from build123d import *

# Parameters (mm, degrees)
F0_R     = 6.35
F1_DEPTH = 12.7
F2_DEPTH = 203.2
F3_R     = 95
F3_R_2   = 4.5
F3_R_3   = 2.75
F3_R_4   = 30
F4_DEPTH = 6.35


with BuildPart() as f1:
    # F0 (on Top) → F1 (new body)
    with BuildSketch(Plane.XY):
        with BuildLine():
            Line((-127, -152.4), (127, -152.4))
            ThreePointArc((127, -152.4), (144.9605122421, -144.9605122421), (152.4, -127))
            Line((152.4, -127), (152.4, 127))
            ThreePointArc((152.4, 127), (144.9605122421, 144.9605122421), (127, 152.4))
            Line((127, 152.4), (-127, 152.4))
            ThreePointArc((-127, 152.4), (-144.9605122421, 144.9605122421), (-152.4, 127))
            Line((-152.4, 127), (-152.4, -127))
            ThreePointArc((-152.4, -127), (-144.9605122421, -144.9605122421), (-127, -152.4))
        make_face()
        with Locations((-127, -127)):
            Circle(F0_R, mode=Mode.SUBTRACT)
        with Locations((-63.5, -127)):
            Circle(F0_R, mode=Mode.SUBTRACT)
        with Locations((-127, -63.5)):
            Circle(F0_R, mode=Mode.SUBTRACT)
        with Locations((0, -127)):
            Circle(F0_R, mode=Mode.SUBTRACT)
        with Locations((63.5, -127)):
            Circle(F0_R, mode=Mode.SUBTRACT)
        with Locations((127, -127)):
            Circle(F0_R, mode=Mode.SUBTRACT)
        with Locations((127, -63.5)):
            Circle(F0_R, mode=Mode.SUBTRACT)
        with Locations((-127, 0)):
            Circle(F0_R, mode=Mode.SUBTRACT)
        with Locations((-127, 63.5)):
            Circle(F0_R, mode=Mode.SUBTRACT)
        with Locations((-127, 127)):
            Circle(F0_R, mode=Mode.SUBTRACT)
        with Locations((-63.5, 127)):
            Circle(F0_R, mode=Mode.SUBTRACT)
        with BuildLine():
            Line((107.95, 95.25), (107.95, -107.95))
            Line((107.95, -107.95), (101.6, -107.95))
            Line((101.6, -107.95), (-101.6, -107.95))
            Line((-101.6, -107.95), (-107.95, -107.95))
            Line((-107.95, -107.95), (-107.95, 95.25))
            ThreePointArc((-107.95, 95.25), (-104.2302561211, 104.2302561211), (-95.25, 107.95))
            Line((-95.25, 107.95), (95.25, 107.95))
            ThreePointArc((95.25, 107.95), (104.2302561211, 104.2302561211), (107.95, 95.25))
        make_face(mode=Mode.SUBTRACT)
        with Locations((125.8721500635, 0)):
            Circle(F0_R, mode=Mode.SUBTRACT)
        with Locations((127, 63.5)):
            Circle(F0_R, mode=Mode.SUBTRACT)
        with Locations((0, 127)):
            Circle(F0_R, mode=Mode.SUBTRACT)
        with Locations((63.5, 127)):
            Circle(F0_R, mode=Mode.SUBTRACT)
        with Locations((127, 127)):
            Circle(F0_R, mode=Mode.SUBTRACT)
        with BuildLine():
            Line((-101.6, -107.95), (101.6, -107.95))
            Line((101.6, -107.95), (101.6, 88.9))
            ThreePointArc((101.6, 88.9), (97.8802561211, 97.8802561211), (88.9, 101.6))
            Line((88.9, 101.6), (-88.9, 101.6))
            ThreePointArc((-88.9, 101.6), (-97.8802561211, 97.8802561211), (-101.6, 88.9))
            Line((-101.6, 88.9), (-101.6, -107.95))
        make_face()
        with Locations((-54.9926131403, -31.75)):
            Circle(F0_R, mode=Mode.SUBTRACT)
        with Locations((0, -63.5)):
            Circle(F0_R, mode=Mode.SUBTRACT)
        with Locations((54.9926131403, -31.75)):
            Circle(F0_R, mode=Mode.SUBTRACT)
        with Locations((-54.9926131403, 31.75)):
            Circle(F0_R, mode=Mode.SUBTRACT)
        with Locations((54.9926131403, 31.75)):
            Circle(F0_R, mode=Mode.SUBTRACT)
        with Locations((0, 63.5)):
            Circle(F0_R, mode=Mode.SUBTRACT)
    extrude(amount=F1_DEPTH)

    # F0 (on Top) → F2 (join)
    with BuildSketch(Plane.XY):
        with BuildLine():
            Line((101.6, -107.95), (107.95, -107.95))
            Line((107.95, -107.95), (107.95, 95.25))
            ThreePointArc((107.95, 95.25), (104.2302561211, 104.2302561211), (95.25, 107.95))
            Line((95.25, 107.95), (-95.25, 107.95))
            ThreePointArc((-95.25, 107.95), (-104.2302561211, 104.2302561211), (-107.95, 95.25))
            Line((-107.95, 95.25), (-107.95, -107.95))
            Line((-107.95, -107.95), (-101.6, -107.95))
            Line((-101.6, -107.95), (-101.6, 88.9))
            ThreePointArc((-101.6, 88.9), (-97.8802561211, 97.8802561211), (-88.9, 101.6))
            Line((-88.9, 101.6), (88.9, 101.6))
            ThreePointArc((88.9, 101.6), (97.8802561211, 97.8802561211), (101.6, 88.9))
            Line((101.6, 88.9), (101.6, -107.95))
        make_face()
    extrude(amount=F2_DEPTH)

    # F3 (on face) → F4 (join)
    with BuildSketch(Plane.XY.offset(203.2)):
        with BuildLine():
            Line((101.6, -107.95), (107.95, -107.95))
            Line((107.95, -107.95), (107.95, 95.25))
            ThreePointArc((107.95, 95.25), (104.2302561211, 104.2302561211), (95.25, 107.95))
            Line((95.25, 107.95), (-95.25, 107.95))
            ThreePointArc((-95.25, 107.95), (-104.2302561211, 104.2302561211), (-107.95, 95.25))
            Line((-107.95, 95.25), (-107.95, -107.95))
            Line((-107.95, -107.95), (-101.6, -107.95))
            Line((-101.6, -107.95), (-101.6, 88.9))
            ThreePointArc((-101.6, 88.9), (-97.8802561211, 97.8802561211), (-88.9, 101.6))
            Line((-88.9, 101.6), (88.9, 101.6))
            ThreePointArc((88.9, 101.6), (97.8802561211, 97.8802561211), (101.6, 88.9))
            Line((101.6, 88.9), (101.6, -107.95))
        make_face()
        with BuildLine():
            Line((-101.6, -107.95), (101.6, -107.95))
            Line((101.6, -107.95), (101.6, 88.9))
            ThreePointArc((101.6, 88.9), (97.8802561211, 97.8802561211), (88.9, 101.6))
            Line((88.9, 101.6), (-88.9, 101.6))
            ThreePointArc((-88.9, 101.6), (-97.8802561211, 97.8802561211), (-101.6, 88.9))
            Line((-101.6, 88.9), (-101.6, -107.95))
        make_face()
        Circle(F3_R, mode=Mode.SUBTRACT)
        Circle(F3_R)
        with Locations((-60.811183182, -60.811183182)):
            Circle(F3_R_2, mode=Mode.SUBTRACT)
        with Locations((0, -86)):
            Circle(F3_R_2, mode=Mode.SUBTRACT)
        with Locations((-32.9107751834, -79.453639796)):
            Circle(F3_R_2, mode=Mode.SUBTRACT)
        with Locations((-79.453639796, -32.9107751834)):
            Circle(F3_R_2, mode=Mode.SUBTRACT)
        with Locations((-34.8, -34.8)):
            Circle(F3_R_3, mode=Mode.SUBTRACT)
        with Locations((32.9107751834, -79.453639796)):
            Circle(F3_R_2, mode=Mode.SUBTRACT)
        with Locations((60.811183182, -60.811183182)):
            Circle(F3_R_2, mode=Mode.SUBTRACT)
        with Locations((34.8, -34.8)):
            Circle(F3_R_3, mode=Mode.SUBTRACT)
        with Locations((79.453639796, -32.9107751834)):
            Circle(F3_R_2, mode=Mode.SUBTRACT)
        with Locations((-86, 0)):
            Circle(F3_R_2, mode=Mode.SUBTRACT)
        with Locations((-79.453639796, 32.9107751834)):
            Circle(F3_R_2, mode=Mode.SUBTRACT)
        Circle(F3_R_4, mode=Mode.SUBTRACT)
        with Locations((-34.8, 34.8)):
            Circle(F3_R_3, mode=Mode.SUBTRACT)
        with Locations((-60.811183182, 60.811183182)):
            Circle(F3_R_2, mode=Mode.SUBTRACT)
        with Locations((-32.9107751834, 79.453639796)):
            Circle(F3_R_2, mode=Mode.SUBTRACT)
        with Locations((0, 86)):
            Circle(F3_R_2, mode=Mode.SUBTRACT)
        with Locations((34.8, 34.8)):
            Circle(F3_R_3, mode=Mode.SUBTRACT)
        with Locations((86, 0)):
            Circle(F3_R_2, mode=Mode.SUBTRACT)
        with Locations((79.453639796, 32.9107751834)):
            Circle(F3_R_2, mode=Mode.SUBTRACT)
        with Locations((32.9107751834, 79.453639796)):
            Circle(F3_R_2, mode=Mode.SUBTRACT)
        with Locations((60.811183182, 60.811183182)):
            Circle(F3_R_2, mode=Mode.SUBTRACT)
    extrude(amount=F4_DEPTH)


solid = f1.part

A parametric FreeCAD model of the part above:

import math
import FreeCAD as App
import Part
import Sketcher
from FreeCAD import Vector
Q = App.Units.Quantity

doc = App.newDocument("Part")
body = doc.addObject("PartDesign::Body", "Body")

sketch1 = body.newObject("Sketcher::SketchObject", "Sketch")
sketch1.AttachmentSupport = (doc.getObject("XY_Plane"), [""])
sketch1.MapMode = "FlatFace"
sketch1.addGeometry([
    Part.LineSegment(Vector(-127, -152, 0), Vector(127, -152, 0)),
    Part.ArcOfCircle(Part.Circle(Vector(127, -127, 0), Vector(0, 0, 1), 25), math.radians(-90), math.radians(0)),
    Part.LineSegment(Vector(152, -127, 0), Vector(152, 127, 0)),
    Part.ArcOfCircle(Part.Circle(Vector(127, 127, 0), Vector(0, 0, 1), 25), math.radians(0), math.radians(90)),
    Part.LineSegment(Vector(127, 152, 0), Vector(-127, 152, 0)),
    Part.ArcOfCircle(Part.Circle(Vector(-127, 127, 0), Vector(0, 0, 1), 25), math.radians(90), math.radians(180)),
    Part.LineSegment(Vector(-152, 127, 0), Vector(-152, -127, 0)),
    Part.ArcOfCircle(Part.Circle(Vector(-127, -127, 0), Vector(0, 0, 1), 25), math.radians(180), math.radians(270)),
    Part.Circle(Vector(-127, -127, 0), Vector(0, 0, 1), 6),
    Part.Circle(Vector(-64, -127, 0), Vector(0, 0, 1), 6),
    Part.Circle(Vector(-127, -64, 0), Vector(0, 0, 1), 6),
    Part.Circle(Vector(-55, -32, 0), Vector(0, 0, 1), 6),
    Part.Circle(Vector(0, -127, 0), Vector(0, 0, 1), 6),
    Part.Circle(Vector(64, -127, 0), Vector(0, 0, 1), 6),
    Part.Circle(Vector(127, -127, 0), Vector(0, 0, 1), 6),
    Part.Circle(Vector(0, -64, 0), Vector(0, 0, 1), 6),
    Part.Circle(Vector(55, -32, 0), Vector(0, 0, 1), 6),
    Part.Circle(Vector(127, -64, 0), Vector(0, 0, 1), 6),
    Part.Circle(Vector(-127, 0, 0), Vector(0, 0, 1), 6),
    Part.Circle(Vector(-127, 64, 0), Vector(0, 0, 1), 6),
    Part.Circle(Vector(-55, 32, 0), Vector(0, 0, 1), 6),
    Part.Circle(Vector(-127, 127, 0), Vector(0, 0, 1), 6),
    Part.Circle(Vector(-64, 127, 0), Vector(0, 0, 1), 6),
    Part.ArcOfCircle(Part.Circle(Vector(95, 95, 0), Vector(0, 0, 1), 13), math.radians(0), math.radians(90)),
    Part.LineSegment(Vector(108, 95, 0), Vector(108, -108, 0)),
    Part.LineSegment(Vector(108, -108, 0), Vector(102, -108, 0)),
    Part.LineSegment(Vector(102, -108, 0), Vector(102, 89, 0)),
    Part.ArcOfCircle(Part.Circle(Vector(89, 89, 0), Vector(0, 0, 1), 13), math.radians(0), math.radians(90)),
    Part.LineSegment(Vector(89, 102, 0), Vector(-89, 102, 0)),
    Part.ArcOfCircle(Part.Circle(Vector(-89, 89, 0), Vector(0, 0, 1), 13), math.radians(90), math.radians(180)),
    Part.LineSegment(Vector(-102, 89, 0), Vector(-102, -108, 0)),
    Part.LineSegment(Vector(-102, -108, 0), Vector(-108, -108, 0)),
    Part.LineSegment(Vector(-108, -108, 0), Vector(-108, 95, 0)),
    Part.ArcOfCircle(Part.Circle(Vector(-95, 95, 0), Vector(0, 0, 1), 13), math.radians(90), math.radians(180)),
    Part.LineSegment(Vector(-95, 108, 0), Vector(95, 108, 0)),
    Part.Circle(Vector(55, 32, 0), Vector(0, 0, 1), 6),
    Part.Circle(Vector(0, 64, 0), Vector(0, 0, 1), 6),
    Part.Circle(Vector(126, 0, 0), Vector(0, 0, 1), 6),
    Part.Circle(Vector(127, 64, 0), Vector(0, 0, 1), 6),
    Part.Circle(Vector(0, 127, 0), Vector(0, 0, 1), 6),
    Part.Circle(Vector(64, 127, 0), Vector(0, 0, 1), 6),
    Part.Circle(Vector(127, 127, 0), Vector(0, 0, 1), 6),
], False)
sketch1.addConstraint([
    Sketcher.Constraint("Tangent", 0, 2, 1, 1),
    Sketcher.Constraint("Tangent", 1, 2, 2, 1),
    Sketcher.Constraint("Tangent", 2, 2, 3, 1),
    Sketcher.Constraint("Tangent", 3, 2, 4, 1),
    Sketcher.Constraint("Tangent", 4, 2, 5, 1),
    Sketcher.Constraint("Tangent", 5, 2, 6, 1),
    Sketcher.Constraint("Tangent", 6, 2, 7, 1),
    Sketcher.Constraint("Tangent", 7, 2, 0, 1),
    Sketcher.Constraint("Tangent", 23, 1, 24, 1),
    Sketcher.Constraint("Coincident", 24, 2, 25, 1),
    Sketcher.Constraint("Coincident", 25, 2, 26, 1),
    Sketcher.Constraint("Tangent", 26, 2, 27, 1),
    Sketcher.Constraint("Tangent", 27, 2, 28, 1),
    Sketcher.Constraint("Tangent", 28, 2, 29, 1),
    Sketcher.Constraint("Tangent", 29, 2, 30, 1),
    Sketcher.Constraint("Coincident", 30, 2, 31, 1),
    Sketcher.Constraint("Coincident", 31, 2, 32, 1),
    Sketcher.Constraint("Tangent", 32, 2, 33, 2),
    Sketcher.Constraint("Tangent", 33, 1, 34, 1),
    Sketcher.Constraint("Tangent", 34, 2, 23, 2),
    Sketcher.Constraint("Horizontal", 0),
    Sketcher.Constraint("Vertical", 2),
    Sketcher.Constraint("Horizontal", 4),
    Sketcher.Constraint("Vertical", 6),
    Sketcher.Constraint("Vertical", 24),
    Sketcher.Constraint("Horizontal", 25),
    Sketcher.Constraint("Vertical", 26),
    Sketcher.Constraint("Horizontal", 28),
    Sketcher.Constraint("Vertical", 30),
    Sketcher.Constraint("Horizontal", 31),
    Sketcher.Constraint("Vertical", 32),
    Sketcher.Constraint("Horizontal", 34),
    Sketcher.Constraint("Coincident", 8, 3, 7, 3),
    Sketcher.Constraint("Coincident", 14, 3, 1, 3),
    Sketcher.Constraint("Coincident", 21, 3, 5, 3),
    Sketcher.Constraint("Coincident", 41, 3, 3, 3),
    Sketcher.Constraint("Equal", 1, 3),
    Sketcher.Constraint("Equal", 3, 5),
    Sketcher.Constraint("Equal", 5, 7),
    Sketcher.Constraint("Equal", 8, 9),
    Sketcher.Constraint("Equal", 9, 10),
    Sketcher.Constraint("Equal", 10, 11),
    Sketcher.Constraint("Equal", 11, 12),
    Sketcher.Constraint("Equal", 12, 13),
    Sketcher.Constraint("Equal", 13, 14),
    Sketcher.Constraint("Equal", 14, 15),
    Sketcher.Constraint("Equal", 15, 16),
    Sketcher.Constraint("Equal", 16, 17),
    Sketcher.Constraint("Equal", 17, 18),
    Sketcher.Constraint("Equal", 18, 19),
    Sketcher.Constraint("Equal", 19, 20),
    Sketcher.Constraint("Equal", 20, 21),
    Sketcher.Constraint("Equal", 21, 22),
    Sketcher.Constraint("Equal", 23, 27),
    Sketcher.Constraint("Equal", 27, 29),
    Sketcher.Constraint("Equal", 29, 33),
    Sketcher.Constraint("Equal", 22, 35),
    Sketcher.Constraint("Equal", 35, 36),
    Sketcher.Constraint("Equal", 36, 37),
    Sketcher.Constraint("Equal", 37, 38),
    Sketcher.Constraint("Equal", 38, 39),
    Sketcher.Constraint("Equal", 39, 40),
    Sketcher.Constraint("Equal", 40, 41),
    Sketcher.Constraint("Symmetric", 1, 3, 5, 3, -1, 1),
    Sketcher.Constraint("Symmetric", 17, 3, 19, 3, -1, 1),
    Sketcher.Constraint("Symmetric", 16, 3, 20, 3, -1, 1),
    Sketcher.Constraint("Symmetric", 13, 3, 22, 3, -1, 1),
    Sketcher.Constraint("Symmetric", 11, 3, 35, 3, -1, 1),
    Sketcher.Constraint("Symmetric", 15, 3, 36, 3, -1, 1),
    Sketcher.Constraint("Symmetric", 10, 3, 38, 3, -1, 1),
    Sketcher.Constraint("Symmetric", 12, 3, 39, 3, -1, 1),
    Sketcher.Constraint("Symmetric", 9, 3, 40, 3, -1, 1),
    Sketcher.Constraint("Symmetric", 9, 3, 13, 3, -2),
    Sketcher.Constraint("Symmetric", 11, 3, 16, 3, -2),
    Sketcher.Constraint("Symmetric", 10, 3, 17, 3, -2),
    Sketcher.Constraint("Symmetric", 25, 2, 30, 2, -2),
    Sketcher.Constraint("PointOnObject", 12, 3, -2),
    Sketcher.Constraint("PointOnObject", 15, 3, -2),
    Sketcher.Constraint("PointOnObject", 18, 3, -1),
    Sketcher.Constraint("PointOnObject", 37, 3, -1),
    Sketcher.Constraint("Horizontal", 8, 3, 9, 3),
    Sketcher.Constraint("Horizontal", 9, 3, 12, 3),
    Sketcher.Constraint("Horizontal", 10, 3, 15, 3),
    Sketcher.Constraint("Vertical", 8, 3, 10, 3),
    Sketcher.Constraint("Vertical", 10, 3, 18, 3),
    Sketcher.Constraint("Equal", 25, 31),
    Sketcher.Constraint("Equal", 4, 2),
    Sketcher.Constraint("Radius", 1, Q("1 in")),
    Sketcher.Constraint("Diameter", 8, Q("0.5 in")),
    Sketcher.Constraint("Radius", 23, Q("0.5 in")),
    Sketcher.Constraint("DistanceX", 0, 1, 0, 2, Q("10 in")),
    Sketcher.Constraint("DistanceX", 28, 2, 28, 1, Q("7 in")),
    Sketcher.Constraint("DistanceY", 24, 2, 24, 1, Q("8 in")),
    Sketcher.Constraint("DistanceX", 34, 1, 34, 2, Q("7.5 in")),
    Sketcher.Constraint("DistanceY", -1, 1, 27, 2, Q("4 in")),
    Sketcher.Constraint("DistanceX", 9, 3, 13, 3, Q("5 in")),
    Sketcher.Constraint("DistanceY", 10, 3, 19, 3, Q("5 in")),
    Sketcher.Constraint("DistanceY", 16, 3, 23, 3, Q("5 in")),
    Sketcher.Constraint("DistanceY", 26, 1, 26, 2, Q("7.75 in")),
    Sketcher.Constraint("DistanceX", -1, 1, 37, 3, Q("125.87215 mm")),
    Sketcher.Constraint("DistanceX", 11, 3, -1, 1, Q("54.992613 mm")),
])
pad1 = body.newObject("PartDesign::Pad", "Pad")
pad1.Profile = sketch1
pad1.Length = Q("0.5 in")

sketch2 = body.newObject("Sketcher::SketchObject", "Sketch001")
sketch2.AttachmentSupport = (doc.getObject("XY_Plane"), [""])
sketch2.MapMode = "FlatFace"
sketch2.addGeometry([
    Part.LineSegment(Vector(102, -108, 0), Vector(108, -108, 0)),
    Part.LineSegment(Vector(108, -108, 0), Vector(108, 95, 0)),
    Part.ArcOfCircle(Part.Circle(Vector(95, 95, 0), Vector(0, 0, 1), 13), math.radians(0), math.radians(90)),
    Part.LineSegment(Vector(95, 108, 0), Vector(-95, 108, 0)),
    Part.ArcOfCircle(Part.Circle(Vector(-95, 95, 0), Vector(0, 0, 1), 13), math.radians(90), math.radians(180)),
    Part.LineSegment(Vector(-108, 95, 0), Vector(-108, -108, 0)),
    Part.LineSegment(Vector(-108, -108, 0), Vector(-102, -108, 0)),
    Part.LineSegment(Vector(-102, -108, 0), Vector(-102, 89, 0)),
    Part.ArcOfCircle(Part.Circle(Vector(-89, 89, 0), Vector(0, 0, 1), 13), math.radians(90), math.radians(180)),
    Part.LineSegment(Vector(-89, 102, 0), Vector(89, 102, 0)),
    Part.ArcOfCircle(Part.Circle(Vector(89, 89, 0), Vector(0, 0, 1), 13), math.radians(0), math.radians(90)),
    Part.LineSegment(Vector(102, 89, 0), Vector(102, -108, 0)),
], False)
sketch2.addConstraint([
    Sketcher.Constraint("Coincident", 0, 2, 1, 1),
    Sketcher.Constraint("Tangent", 1, 2, 2, 1),
    Sketcher.Constraint("Tangent", 2, 2, 3, 1),
    Sketcher.Constraint("Tangent", 3, 2, 4, 1),
    Sketcher.Constraint("Tangent", 4, 2, 5, 1),
    Sketcher.Constraint("Coincident", 5, 2, 6, 1),
    Sketcher.Constraint("Coincident", 6, 2, 7, 1),
    Sketcher.Constraint("Tangent", 7, 2, 8, 2),
    Sketcher.Constraint("Tangent", 8, 1, 9, 1),
    Sketcher.Constraint("Tangent", 9, 2, 10, 2),
    Sketcher.Constraint("Tangent", 10, 1, 11, 1),
    Sketcher.Constraint("Coincident", 11, 2, 0, 1),
    Sketcher.Constraint("Horizontal", 0),
    Sketcher.Constraint("Vertical", 1),
    Sketcher.Constraint("Horizontal", 3),
    Sketcher.Constraint("Vertical", 5),
    Sketcher.Constraint("Horizontal", 6),
    Sketcher.Constraint("Vertical", 7),
    Sketcher.Constraint("Horizontal", 9),
    Sketcher.Constraint("Vertical", 11),
    Sketcher.Constraint("Equal", 2, 4),
    Sketcher.Constraint("Equal", 4, 8),
    Sketcher.Constraint("Equal", 8, 10),
    Sketcher.Constraint("Symmetric", 0, 2, 5, 2, -2),
    Sketcher.Constraint("Equal", 0, 6),
    Sketcher.Constraint("Radius", 2, Q("0.5 in")),
    Sketcher.Constraint("DistanceX", 9, 1, 9, 2, Q("7 in")),
    Sketcher.Constraint("DistanceY", 1, 1, 1, 2, Q("8 in")),
    Sketcher.Constraint("DistanceX", 3, 2, 3, 1, Q("7.5 in")),
    Sketcher.Constraint("DistanceY", -1, 1, 8, 1, Q("4 in")),
    Sketcher.Constraint("DistanceY", 7, 1, 7, 2, Q("7.75 in")),
])
pad2 = body.newObject("PartDesign::Pad", "Pad001")
pad2.Profile = sketch2
pad2.Length = Q("8 in")

sketch3 = body.newObject("Sketcher::SketchObject", "Sketch002")
sketch3.AttachmentSupport = (doc.getObject("XY_Plane"), [""])
sketch3.MapMode = "FlatFace"
sketch3.AttachmentOffset = App.Placement(Vector(0, 0, 8 * 25.4), App.Rotation())
sketch3.addGeometry([
    Part.LineSegment(Vector(108, -108, 0), Vector(108, 95.2, 0)),
    Part.ArcOfCircle(Part.Circle(Vector(95.2, 95.2, 0), Vector(0, 0, 1), 12.7), math.radians(0), math.radians(90)),
    Part.LineSegment(Vector(95.2, 108, 0), Vector(-95.2, 108, 0)),
    Part.ArcOfCircle(Part.Circle(Vector(-95.2, 95.2, 0), Vector(0, 0, 1), 12.7), math.radians(90), math.radians(180)),
    Part.LineSegment(Vector(-108, 95.2, 0), Vector(-108, -108, 0)),
    Part.LineSegment(Vector(-108, -108, 0), Vector(108, -108, 0)),
    Part.Circle(Vector(-60.8, -60.8, 0), Vector(0, 0, 1), 4.5),
    Part.Circle(Vector(-32.9, -79.5, 0), Vector(0, 0, 1), 4.5),
    Part.Circle(Vector(-79.5, -32.9, 0), Vector(0, 0, 1), 4.5),
    Part.Circle(Vector(-34.8, -34.8, 0), Vector(0, 0, 1), 2.8),
    Part.Circle(Vector(0, -86, 0), Vector(0, 0, 1), 4.5),
    Part.Circle(Vector(32.9, -79.5, 0), Vector(0, 0, 1), 4.5),
    Part.Circle(Vector(60.8, -60.8, 0), Vector(0, 0, 1), 4.5),
    Part.Circle(Vector(34.8, -34.8, 0), Vector(0, 0, 1), 2.8),
    Part.Circle(Vector(79.5, -32.9, 0), Vector(0, 0, 1), 4.5),
    Part.Circle(Vector(-86, 0, 0), Vector(0, 0, 1), 4.5),
    Part.Circle(Vector(-79.5, 32.9, 0), Vector(0, 0, 1), 4.5),
    Part.Circle(Vector(-34.8, 34.8, 0), Vector(0, 0, 1), 2.8),
    Part.Circle(Vector(-60.8, 60.8, 0), Vector(0, 0, 1), 4.5),
    Part.Circle(Vector(-32.9, 79.5, 0), Vector(0, 0, 1), 4.5),
    Part.Circle(Vector(0, 0, 0), Vector(0, 0, 1), 30),
    Part.Circle(Vector(34.8, 34.8, 0), Vector(0, 0, 1), 2.8),
    Part.Circle(Vector(86, 0, 0), Vector(0, 0, 1), 4.5),
    Part.Circle(Vector(79.5, 32.9, 0), Vector(0, 0, 1), 4.5),
    Part.Circle(Vector(0, 86, 0), Vector(0, 0, 1), 4.5),
    Part.Circle(Vector(32.9, 79.5, 0), Vector(0, 0, 1), 4.5),
    Part.Circle(Vector(60.8, 60.8, 0), Vector(0, 0, 1), 4.5),
], False)
sketch3.addConstraint([
    Sketcher.Constraint("Tangent", 0, 2, 1, 1),
    Sketcher.Constraint("Tangent", 1, 2, 2, 1),
    Sketcher.Constraint("Tangent", 2, 2, 3, 1),
    Sketcher.Constraint("Tangent", 3, 2, 4, 1),
    Sketcher.Constraint("Coincident", 4, 2, 5, 1),
    Sketcher.Constraint("Coincident", 5, 2, 0, 1),
    Sketcher.Constraint("Vertical", 0),
    Sketcher.Constraint("Horizontal", 2),
    Sketcher.Constraint("Vertical", 4),
    Sketcher.Constraint("Horizontal", 5),
    Sketcher.Constraint("Coincident", 20, 3, -1, 1),
    Sketcher.Constraint("Equal", 1, 3),
    Sketcher.Constraint("Equal", 6, 7),
    Sketcher.Constraint("Equal", 7, 8),
    Sketcher.Constraint("Equal", 8, 10),
    Sketcher.Constraint("Equal", 10, 11),
    Sketcher.Constraint("Equal", 11, 12),
    Sketcher.Constraint("Equal", 9, 13),
    Sketcher.Constraint("Equal", 12, 14),
    Sketcher.Constraint("Equal", 14, 15),
    Sketcher.Constraint("Equal", 15, 16),
    Sketcher.Constraint("Equal", 13, 17),
    Sketcher.Constraint("Equal", 16, 18),
    Sketcher.Constraint("Equal", 18, 19),
    Sketcher.Constraint("Equal", 17, 21),
    Sketcher.Constraint("Equal", 19, 22),
    Sketcher.Constraint("Equal", 22, 23),
    Sketcher.Constraint("Equal", 23, 24),
    Sketcher.Constraint("Equal", 24, 25),
    Sketcher.Constraint("Equal", 25, 26),
    Sketcher.Constraint("Symmetric", 14, 3, 16, 3, -1, 1),
    Sketcher.Constraint("Symmetric", 13, 3, 17, 3, -1, 1),
    Sketcher.Constraint("Symmetric", 12, 3, 18, 3, -1, 1),
    Sketcher.Constraint("Symmetric", 11, 3, 19, 3, -1, 1),
    Sketcher.Constraint("Symmetric", 9, 3, 21, 3, -1, 1),
    Sketcher.Constraint("Symmetric", 15, 3, 22, 3, -1, 1),
    Sketcher.Constraint("Symmetric", 8, 3, 23, 3, -1, 1),
    Sketcher.Constraint("Symmetric", 10, 3, 24, 3, -1, 1),
    Sketcher.Constraint("Symmetric", 7, 3, 25, 3, -1, 1),
    Sketcher.Constraint("Symmetric", 6, 3, 26, 3, -1, 1),
    Sketcher.Constraint("Symmetric", 7, 3, 11, 3, -2),
    Sketcher.Constraint("Symmetric", 6, 3, 12, 3, -2),
    Sketcher.Constraint("Symmetric", 9, 3, 13, 3, -2),
    Sketcher.Constraint("Symmetric", 8, 3, 14, 3, -2),
    Sketcher.Constraint("PointOnObject", 10, 3, -2),
    Sketcher.Constraint("PointOnObject", 15, 3, -1),
    Sketcher.Constraint("Radius", 1, Q("0.5 in")),
    Sketcher.Constraint("DistanceY", 0, 1, 0, 2, Q("8 in")),
    Sketcher.Constraint("DistanceX", 2, 2, 2, 1, Q("7.5 in")),
    Sketcher.Constraint("Diameter", 6, Q("9 mm")),
    Sketcher.Constraint("Diameter", 9, Q("5.5 mm")),
    Sketcher.Constraint("Diameter", 20, Q("60 mm")),
    Sketcher.Constraint("DistanceX", -1, 1, 1, 3, Q("3.75 in")),
    Sketcher.Constraint("DistanceY", -1, 1, 1, 3, Q("3.75 in")),
    Sketcher.Constraint("DistanceX", 7, 3, -1, 1, Q("1.2956998 in")),
    Sketcher.Constraint("DistanceY", 8, 3, -1, 1, Q("1.2956998 in")),
    Sketcher.Constraint("DistanceX", 9, 3, -1, 1, Q("34.8 mm")),
    Sketcher.Constraint("DistanceY", 9, 3, -1, 1, Q("34.8 mm")),
    Sketcher.Constraint("DistanceY", 10, 3, -1, 1, Q("86 mm")),
    Sketcher.Constraint("DistanceX", 15, 3, -1, 1, Q("86 mm")),
    Sketcher.Constraint("DistanceY", 7, 3, -1, 1, Q("79.45364 mm")),
    Sketcher.Constraint("DistanceX", 8, 3, -1, 1, Q("79.45364 mm")),
    Sketcher.Constraint("DistanceX", 6, 3, 11, 3, Q("93.721958 mm")),
    Sketcher.Constraint("DistanceY", 6, 3, 16, 3, Q("93.721958 mm")),
])
pad3 = body.newObject("PartDesign::Pad", "Pad002")
pad3.Profile = sketch3
pad3.Length = Q("0.25 in")

doc.recompute()
